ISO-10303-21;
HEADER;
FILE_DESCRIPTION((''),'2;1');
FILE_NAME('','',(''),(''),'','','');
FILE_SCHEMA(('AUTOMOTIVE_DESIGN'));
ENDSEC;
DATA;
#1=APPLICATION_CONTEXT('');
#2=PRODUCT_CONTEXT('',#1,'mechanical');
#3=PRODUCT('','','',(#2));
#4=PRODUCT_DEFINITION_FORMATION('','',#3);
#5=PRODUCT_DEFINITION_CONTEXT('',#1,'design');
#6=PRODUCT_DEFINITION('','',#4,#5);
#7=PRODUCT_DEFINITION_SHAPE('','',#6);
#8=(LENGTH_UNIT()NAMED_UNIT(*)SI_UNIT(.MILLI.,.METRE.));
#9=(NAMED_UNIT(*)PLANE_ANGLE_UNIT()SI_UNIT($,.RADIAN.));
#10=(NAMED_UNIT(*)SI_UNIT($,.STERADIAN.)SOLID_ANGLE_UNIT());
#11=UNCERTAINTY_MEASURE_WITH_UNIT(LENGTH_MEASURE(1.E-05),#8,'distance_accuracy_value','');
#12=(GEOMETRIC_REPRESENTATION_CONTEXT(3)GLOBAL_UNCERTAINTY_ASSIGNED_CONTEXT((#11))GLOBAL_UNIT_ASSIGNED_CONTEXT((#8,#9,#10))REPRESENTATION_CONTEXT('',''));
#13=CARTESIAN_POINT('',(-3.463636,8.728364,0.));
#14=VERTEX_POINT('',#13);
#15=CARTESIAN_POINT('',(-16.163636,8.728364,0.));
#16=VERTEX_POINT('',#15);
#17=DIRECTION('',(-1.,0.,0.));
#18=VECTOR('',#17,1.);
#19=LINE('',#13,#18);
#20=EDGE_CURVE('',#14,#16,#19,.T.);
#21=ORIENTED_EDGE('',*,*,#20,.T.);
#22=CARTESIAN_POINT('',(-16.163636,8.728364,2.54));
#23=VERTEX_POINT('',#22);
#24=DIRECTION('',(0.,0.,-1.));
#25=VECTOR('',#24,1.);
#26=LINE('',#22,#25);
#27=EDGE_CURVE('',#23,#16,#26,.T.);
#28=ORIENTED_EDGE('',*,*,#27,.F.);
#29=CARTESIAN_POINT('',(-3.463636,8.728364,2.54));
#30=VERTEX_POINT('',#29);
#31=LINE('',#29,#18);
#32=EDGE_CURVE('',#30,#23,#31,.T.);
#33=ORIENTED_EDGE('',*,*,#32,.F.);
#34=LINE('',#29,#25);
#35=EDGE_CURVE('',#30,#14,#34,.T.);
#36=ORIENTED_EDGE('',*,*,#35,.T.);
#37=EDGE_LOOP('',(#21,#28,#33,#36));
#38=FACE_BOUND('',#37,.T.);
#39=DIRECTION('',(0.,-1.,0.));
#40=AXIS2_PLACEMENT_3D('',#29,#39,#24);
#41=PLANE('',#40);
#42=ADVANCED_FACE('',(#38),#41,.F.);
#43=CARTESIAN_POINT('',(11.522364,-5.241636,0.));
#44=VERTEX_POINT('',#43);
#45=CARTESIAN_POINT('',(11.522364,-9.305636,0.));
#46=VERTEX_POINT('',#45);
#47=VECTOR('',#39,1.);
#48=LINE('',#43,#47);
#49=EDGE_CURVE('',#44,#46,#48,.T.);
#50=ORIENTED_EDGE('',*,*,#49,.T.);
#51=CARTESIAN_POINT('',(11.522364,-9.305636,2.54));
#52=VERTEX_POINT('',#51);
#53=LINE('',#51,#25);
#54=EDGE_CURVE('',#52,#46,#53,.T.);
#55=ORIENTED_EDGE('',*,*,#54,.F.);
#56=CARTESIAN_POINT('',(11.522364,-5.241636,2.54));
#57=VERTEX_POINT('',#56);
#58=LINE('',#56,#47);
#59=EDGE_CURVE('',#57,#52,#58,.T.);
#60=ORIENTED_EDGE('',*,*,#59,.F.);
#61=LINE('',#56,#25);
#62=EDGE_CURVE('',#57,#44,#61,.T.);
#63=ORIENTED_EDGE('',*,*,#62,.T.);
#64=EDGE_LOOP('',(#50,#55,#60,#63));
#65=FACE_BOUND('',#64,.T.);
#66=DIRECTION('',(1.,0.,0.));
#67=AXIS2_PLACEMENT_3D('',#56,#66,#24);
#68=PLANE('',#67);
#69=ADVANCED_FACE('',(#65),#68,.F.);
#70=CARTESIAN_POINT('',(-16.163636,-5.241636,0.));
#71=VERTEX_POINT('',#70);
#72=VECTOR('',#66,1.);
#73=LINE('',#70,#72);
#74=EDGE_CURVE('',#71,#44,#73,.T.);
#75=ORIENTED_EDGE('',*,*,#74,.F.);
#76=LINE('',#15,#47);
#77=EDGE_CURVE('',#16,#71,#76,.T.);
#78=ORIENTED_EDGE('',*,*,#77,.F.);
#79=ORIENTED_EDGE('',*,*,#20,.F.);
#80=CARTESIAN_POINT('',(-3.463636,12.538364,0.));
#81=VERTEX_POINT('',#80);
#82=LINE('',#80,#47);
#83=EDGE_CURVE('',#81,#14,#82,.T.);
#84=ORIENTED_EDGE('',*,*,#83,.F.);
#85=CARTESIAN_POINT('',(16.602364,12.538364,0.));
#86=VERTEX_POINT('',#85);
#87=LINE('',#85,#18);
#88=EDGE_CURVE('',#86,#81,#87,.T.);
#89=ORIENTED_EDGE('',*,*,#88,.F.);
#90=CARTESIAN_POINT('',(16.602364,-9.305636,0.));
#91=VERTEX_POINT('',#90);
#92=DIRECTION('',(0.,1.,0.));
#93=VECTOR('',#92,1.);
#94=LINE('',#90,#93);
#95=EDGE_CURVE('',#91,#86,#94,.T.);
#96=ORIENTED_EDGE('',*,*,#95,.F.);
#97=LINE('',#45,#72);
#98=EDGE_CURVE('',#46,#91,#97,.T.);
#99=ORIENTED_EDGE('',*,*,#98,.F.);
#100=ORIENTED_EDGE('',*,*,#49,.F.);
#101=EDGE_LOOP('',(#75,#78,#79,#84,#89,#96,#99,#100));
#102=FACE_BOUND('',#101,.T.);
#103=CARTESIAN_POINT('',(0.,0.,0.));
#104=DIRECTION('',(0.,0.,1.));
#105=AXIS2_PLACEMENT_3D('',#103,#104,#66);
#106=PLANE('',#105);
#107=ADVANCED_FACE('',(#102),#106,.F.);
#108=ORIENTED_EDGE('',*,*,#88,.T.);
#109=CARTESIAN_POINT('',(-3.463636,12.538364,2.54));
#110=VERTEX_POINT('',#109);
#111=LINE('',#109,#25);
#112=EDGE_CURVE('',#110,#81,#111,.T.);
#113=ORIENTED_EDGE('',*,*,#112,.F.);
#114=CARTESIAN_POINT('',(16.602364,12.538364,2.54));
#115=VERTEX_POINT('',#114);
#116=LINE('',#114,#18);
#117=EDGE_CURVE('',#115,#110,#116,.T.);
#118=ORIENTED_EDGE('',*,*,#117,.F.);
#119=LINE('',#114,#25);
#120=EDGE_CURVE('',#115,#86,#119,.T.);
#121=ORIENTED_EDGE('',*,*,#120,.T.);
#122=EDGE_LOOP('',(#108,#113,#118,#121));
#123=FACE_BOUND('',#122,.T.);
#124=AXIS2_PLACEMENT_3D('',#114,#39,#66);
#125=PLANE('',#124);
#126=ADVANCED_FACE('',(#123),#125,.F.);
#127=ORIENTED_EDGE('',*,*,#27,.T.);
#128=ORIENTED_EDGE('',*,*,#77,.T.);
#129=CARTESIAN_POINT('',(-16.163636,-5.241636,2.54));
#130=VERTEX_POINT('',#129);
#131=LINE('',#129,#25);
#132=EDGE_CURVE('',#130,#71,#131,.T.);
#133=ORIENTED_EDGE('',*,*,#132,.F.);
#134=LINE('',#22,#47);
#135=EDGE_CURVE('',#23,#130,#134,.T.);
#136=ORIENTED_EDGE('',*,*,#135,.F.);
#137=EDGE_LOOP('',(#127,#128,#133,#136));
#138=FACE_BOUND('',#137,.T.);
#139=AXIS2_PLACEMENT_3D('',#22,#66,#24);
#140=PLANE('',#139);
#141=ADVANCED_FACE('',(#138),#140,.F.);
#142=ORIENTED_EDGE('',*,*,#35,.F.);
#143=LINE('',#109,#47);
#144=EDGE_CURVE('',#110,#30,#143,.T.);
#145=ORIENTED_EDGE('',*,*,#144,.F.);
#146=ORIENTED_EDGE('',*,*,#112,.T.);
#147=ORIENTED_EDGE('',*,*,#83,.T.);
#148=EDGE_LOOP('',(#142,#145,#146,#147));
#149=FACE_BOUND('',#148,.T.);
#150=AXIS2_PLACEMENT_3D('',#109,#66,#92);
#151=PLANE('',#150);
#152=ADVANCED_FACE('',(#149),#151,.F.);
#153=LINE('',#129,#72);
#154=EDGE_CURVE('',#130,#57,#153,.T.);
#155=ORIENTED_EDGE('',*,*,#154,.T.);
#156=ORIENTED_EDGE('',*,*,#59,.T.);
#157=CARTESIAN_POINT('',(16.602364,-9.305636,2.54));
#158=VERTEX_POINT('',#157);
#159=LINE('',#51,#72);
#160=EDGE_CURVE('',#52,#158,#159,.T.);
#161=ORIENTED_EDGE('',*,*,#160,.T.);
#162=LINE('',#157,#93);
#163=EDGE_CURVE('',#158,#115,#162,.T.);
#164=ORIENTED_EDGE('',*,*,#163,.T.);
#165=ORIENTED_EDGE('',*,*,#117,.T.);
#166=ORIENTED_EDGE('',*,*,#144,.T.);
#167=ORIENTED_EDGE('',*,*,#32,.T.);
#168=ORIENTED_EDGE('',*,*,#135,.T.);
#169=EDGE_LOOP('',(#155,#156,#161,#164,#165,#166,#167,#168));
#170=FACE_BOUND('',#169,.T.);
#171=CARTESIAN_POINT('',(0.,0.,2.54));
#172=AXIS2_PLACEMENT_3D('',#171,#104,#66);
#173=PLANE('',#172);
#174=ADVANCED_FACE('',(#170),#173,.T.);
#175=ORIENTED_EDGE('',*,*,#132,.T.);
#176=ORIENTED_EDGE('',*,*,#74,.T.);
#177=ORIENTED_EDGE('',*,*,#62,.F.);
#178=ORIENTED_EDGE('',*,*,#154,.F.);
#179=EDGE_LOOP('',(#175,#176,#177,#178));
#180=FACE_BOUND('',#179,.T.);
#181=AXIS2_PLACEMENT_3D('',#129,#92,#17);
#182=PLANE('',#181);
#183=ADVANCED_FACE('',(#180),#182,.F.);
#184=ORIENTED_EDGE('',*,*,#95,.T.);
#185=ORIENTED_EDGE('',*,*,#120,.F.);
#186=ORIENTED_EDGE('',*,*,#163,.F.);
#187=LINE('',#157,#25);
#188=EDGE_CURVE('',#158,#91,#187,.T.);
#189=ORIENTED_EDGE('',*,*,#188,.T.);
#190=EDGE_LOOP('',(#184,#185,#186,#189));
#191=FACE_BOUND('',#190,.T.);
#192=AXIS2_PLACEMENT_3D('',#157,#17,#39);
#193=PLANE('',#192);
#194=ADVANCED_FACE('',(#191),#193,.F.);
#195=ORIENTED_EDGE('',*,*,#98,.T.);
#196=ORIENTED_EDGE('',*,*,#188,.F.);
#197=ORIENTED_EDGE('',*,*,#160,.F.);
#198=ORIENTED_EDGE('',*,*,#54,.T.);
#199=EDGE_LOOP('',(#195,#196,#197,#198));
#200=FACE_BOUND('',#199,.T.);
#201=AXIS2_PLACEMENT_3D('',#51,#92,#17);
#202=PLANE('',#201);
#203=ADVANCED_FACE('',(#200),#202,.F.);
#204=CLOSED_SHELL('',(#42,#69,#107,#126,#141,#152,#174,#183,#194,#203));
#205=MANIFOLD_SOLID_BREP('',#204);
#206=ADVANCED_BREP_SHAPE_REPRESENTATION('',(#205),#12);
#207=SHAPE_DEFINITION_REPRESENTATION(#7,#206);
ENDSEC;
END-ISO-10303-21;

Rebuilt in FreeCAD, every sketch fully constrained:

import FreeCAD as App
import Part
import Sketcher

V = App.Vector
Q = App.Units.Quantity


def add_polygon(sketch, points):
    """Adds a closed chain of lines whose ends are joined by coincident constraints."""
    first, n = sketch.GeometryCount, len(points)
    for a, b in zip(points, points[1:] + points[:1]):
        sketch.addGeometry(Part.LineSegment(App.Vector(*a, 0), App.Vector(*b, 0)), False)
    for i in range(n):
        sketch.addConstraint(Sketcher.Constraint("Coincident", first + i, 2, first + (i + 1) % n, 1))

doc = App.newDocument("Part")
body = doc.addObject("PartDesign::Body", "Body")

sketch1 = body.newObject("Sketcher::SketchObject", "Sketch")
sketch1.AttachmentSupport = (doc.getObject("XY_Plane"), [""])
sketch1.MapMode = "FlatFace"
add_polygon(sketch1, [(-16.2, 8.7), (-16.2, -5.2), (11.5, -5.2), (11.5, -9.3), (16.6, -9.3), (16.6, 12.5), (-3.5, 12.5), (-3.5, 8.7)])
sketch1.addConstraint(Sketcher.Constraint("Vertical", 0))
sketch1.addConstraint(Sketcher.Constraint("Horizontal", 1))
sketch1.addConstraint(Sketcher.Constraint("Vertical", 2))
sketch1.addConstraint(Sketcher.Constraint("Horizontal", 3))
sketch1.addConstraint(Sketcher.Constraint("Vertical", 4))
sketch1.addConstraint(Sketcher.Constraint("Horizontal", 5))
sketch1.addConstraint(Sketcher.Constraint("Vertical", 6))
sketch1.addConstraint(Sketcher.Constraint("Horizontal", 7))
sketch1.addConstraint(Sketcher.Constraint("DistanceX", 3, 1, 3, 2, Q("0.2 in")))
sketch1.addConstraint(Sketcher.Constraint("DistanceX", 7, 2, 7, 1, Q("0.5 in")))
sketch1.addConstraint(Sketcher.Constraint("DistanceX", 1, 1, 1, 2, Q("1.09 in")))
sketch1.addConstraint(Sketcher.Constraint("DistanceY", 0, 2, 0, 1, Q("0.55 in")))
sketch1.addConstraint(Sketcher.Constraint("DistanceY", 2, 2, 2, 1, Q("0.16 in")))
sketch1.addConstraint(Sketcher.Constraint("DistanceY", 4, 1, 4, 2, Q("0.86 in")))
sketch1.addConstraint(Sketcher.Constraint("DistanceX", 0, 2, -1, 1, 16.163636))
sketch1.addConstraint(Sketcher.Constraint("DistanceY", 0, 2, -1, 1, 5.241636))
pad1 = body.newObject("PartDesign::Pad", "Pad")
pad1.Profile = sketch1
pad1.Length = Q("0.1 in")

doc.recompute()
